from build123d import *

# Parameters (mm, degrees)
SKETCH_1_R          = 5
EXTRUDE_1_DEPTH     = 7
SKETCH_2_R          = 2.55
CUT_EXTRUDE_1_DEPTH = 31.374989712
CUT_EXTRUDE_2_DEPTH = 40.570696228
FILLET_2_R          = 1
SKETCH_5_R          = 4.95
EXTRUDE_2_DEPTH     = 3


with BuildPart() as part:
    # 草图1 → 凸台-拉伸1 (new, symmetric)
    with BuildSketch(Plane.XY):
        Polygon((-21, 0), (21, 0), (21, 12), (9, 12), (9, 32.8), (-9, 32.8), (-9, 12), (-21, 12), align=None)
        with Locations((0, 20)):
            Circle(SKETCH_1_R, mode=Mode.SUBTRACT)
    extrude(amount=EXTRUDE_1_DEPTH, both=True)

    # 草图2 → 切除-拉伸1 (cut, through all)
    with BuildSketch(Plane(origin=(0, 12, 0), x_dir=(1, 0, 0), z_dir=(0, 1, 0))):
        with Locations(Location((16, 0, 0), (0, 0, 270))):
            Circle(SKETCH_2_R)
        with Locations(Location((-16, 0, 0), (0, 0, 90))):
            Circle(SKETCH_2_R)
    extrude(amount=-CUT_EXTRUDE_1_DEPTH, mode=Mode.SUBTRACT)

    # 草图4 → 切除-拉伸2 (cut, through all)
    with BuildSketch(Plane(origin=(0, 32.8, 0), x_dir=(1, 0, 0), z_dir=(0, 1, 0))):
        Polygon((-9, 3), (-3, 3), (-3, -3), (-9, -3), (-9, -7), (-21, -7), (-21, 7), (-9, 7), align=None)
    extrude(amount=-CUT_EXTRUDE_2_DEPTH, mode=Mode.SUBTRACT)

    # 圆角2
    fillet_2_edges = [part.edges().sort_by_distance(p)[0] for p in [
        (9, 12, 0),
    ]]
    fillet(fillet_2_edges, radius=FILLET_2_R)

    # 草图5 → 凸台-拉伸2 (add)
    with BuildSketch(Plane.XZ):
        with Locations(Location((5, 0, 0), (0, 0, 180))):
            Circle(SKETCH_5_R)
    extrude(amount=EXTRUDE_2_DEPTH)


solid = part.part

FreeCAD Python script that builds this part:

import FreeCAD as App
import Part
import Sketcher

V = App.Vector


def edges_at(feature, points):
    """Names of the edges that pass closest to the given points."""
    edges = feature.Shape.Edges
    near = lambda p: min(range(len(edges)), key=lambda i: edges[i].distToShape(Part.Vertex(*p))[0])
    return sorted({f"Edge{near(p) + 1}" for p in points})

doc = App.newDocument("Part")
body = doc.addObject("PartDesign::Body", "Body")

# Sketch on XY plane
sketch1 = body.newObject("Sketcher::SketchObject", "Sketch")
sketch1.AttachmentSupport = (doc.getObject("XY_Plane"), [""])
sketch1.MapMode = "FlatFace"
sketch1.addGeometry(Part.LineSegment(V(-21, 0, 0), V(21, 0, 0)), False)
sketch1.addGeometry(Part.LineSegment(V(21, 0, 0), V(21, 12, 0)), False)
sketch1.addGeometry(Part.LineSegment(V(21, 12, 0), V(9, 12, 0)), False)
sketch1.addGeometry(Part.LineSegment(V(9, 12, 0), V(9, 33, 0)), False)
sketch1.addGeometry(Part.LineSegment(V(9, 33, 0), V(-9, 33, 0)), False)
sketch1.addGeometry(Part.LineSegment(V(-9, 33, 0), V(-9, 12, 0)), False)
sketch1.addGeometry(Part.LineSegment(V(-9, 12, 0), V(-21, 12, 0)), False)
sketch1.addGeometry(Part.LineSegment(V(-21, 12, 0), V(-21, 0, 0)), False)
sketch1.addGeometry(Part.Circle(V(0, 20, 0), V(0, 0, 1), 5), False)
sketch1.addConstraint(Sketcher.Constraint("Coincident", 0, 2, 1, 1))
sketch1.addConstraint(Sketcher.Constraint("Coincident", 1, 2, 2, 1))
sketch1.addConstraint(Sketcher.Constraint("Coincident", 2, 2, 3, 1))
sketch1.addConstraint(Sketcher.Constraint("Coincident", 3, 2, 4, 1))
sketch1.addConstraint(Sketcher.Constraint("Coincident", 4, 2, 5, 1))
sketch1.addConstraint(Sketcher.Constraint("Coincident", 5, 2, 6, 1))
sketch1.addConstraint(Sketcher.Constraint("Coincident", 6, 2, 7, 1))
sketch1.addConstraint(Sketcher.Constraint("Coincident", 7, 2, 0, 1))
sketch1.addConstraint(Sketcher.Constraint("Horizontal", 0))
sketch1.addConstraint(Sketcher.Constraint("Vertical", 1))
sketch1.addConstraint(Sketcher.Constraint("Horizontal", 2))
sketch1.addConstraint(Sketcher.Constraint("Vertical", 3))
sketch1.addConstraint(Sketcher.Constraint("Horizontal", 4))
sketch1.addConstraint(Sketcher.Constraint("Vertical", 5))
sketch1.addConstraint(Sketcher.Constraint("Horizontal", 6))
sketch1.addConstraint(Sketcher.Constraint("Vertical", 7))
sketch1.addConstraint(Sketcher.Constraint("Symmetric", 0, 2, 7, 2, -1, 1))
sketch1.addConstraint(Sketcher.Constraint("Symmetric", 2, 2, 5, 2, -2))
sketch1.addConstraint(Sketcher.Constraint("PointOnObject", 8, 3, -2))
sketch1.addConstraint(Sketcher.Constraint("Equal", 6, 1))
sketch1.addConstraint(Sketcher.Constraint("Diameter", 8, 10.0))
sketch1.addConstraint(Sketcher.Constraint("DistanceX", 0, 1, 0, 2, 42.0))
sketch1.addConstraint(Sketcher.Constraint("DistanceX", 2, 2, 2, 1, 12.0))
sketch1.addConstraint(Sketcher.Constraint("DistanceY", 3, 1, 3, 2, 20.8))
sketch1.addConstraint(Sketcher.Constraint("DistanceY", -1, 1, 8, 3, 20.0))
pad1 = body.newObject("PartDesign::Pad", "Pad")
pad1.Profile = sketch1
pad1.Length = 14
pad1.Midplane = True

# Sketch on XZ plane
sketch2 = body.newObject("Sketcher::SketchObject", "Sketch001")
sketch2.AttachmentSupport = (doc.getObject("XZ_Plane"), [""])
sketch2.MapMode = "FlatFace"
sketch2.AttachmentOffset = App.Placement(V(0, 0, -12), App.Rotation())
sketch2.addGeometry(Part.Circle(V(16, 0, 0), V(0, 0, 1), 2.5), False)
sketch2.addGeometry(Part.Circle(V(-16, 0, 0), V(0, 0, 1), 2.5), False)
sketch2.addConstraint(Sketcher.Constraint("Equal", 0, 1))
sketch2.addConstraint(Sketcher.Constraint("Symmetric", 0, 3, 1, 3, -1, 1))
sketch2.addConstraint(Sketcher.Constraint("PointOnObject", 0, 3, -1))
sketch2.addConstraint(Sketcher.Constraint("Diameter", 0, 5.1))
sketch2.addConstraint(Sketcher.Constraint("DistanceX", -1, 1, 0, 3, 16.0))
pocket1 = body.newObject("PartDesign::Pocket", "Pocket")
pocket1.Profile = sketch2
pocket1.Type = "ThroughAll"
pocket1.Reversed = True

# Sketch on XZ plane
sketch3 = body.newObject("Sketcher::SketchObject", "Sketch002")
sketch3.AttachmentSupport = (doc.getObject("XZ_Plane"), [""])
sketch3.MapMode = "FlatFace"
sketch3.AttachmentOffset = App.Placement(V(0, 0, -32.8), App.Rotation())
sketch3.addGeometry(Part.LineSegment(V(-3, -3, 0), V(-9, -3, 0)), False)
sketch3.addGeometry(Part.LineSegment(V(-9, -3, 0), V(-9, -7, 0)), False)
sketch3.addGeometry(Part.LineSegment(V(-9, -7, 0), V(-21, -7, 0)), False)
sketch3.addGeometry(Part.LineSegment(V(-21, -7, 0), V(-21, 7, 0)), False)
sketch3.addGeometry(Part.LineSegment(V(-21, 7, 0), V(-9, 7, 0)), False)
sketch3.addGeometry(Part.LineSegment(V(-9, 7, 0), V(-9, 3, 0)), False)
sketch3.addGeometry(Part.LineSegment(V(-9, 3, 0), V(-3, 3, 0)), False)
sketch3.addGeometry(Part.LineSegment(V(-3, 3, 0), V(-3, -3, 0)), False)
sketch3.addConstraint(Sketcher.Constraint("Coincident", 0, 2, 1, 1))
sketch3.addConstraint(Sketcher.Constraint("Coincident", 1, 2, 2, 1))
sketch3.addConstraint(Sketcher.Constraint("Coincident", 2, 2, 3, 1))
sketch3.addConstraint(Sketcher.Constraint("Coincident", 3, 2, 4, 1))
sketch3.addConstraint(Sketcher.Constraint("Coincident", 4, 2, 5, 1))
sketch3.addConstraint(Sketcher.Constraint("Coincident", 5, 2, 6, 1))
sketch3.addConstraint(Sketcher.Constraint("Coincident", 6, 2, 7, 1))
sketch3.addConstraint(Sketcher.Constraint("Coincident", 7, 2, 0, 1))
sketch3.addConstraint(Sketcher.Constraint("Horizontal", 0))
sketch3.addConstraint(Sketcher.Constraint("Vertical", 1))
sketch3.addConstraint(Sketcher.Constraint("Horizontal", 2))
sketch3.addConstraint(Sketcher.Constraint("Vertical", 3))
sketch3.addConstraint(Sketcher.Constraint("Horizontal", 4))
sketch3.addConstraint(Sketcher.Constraint("Vertical", 5))
sketch3.addConstraint(Sketcher.Constraint("Horizontal", 6))
sketch3.addConstraint(Sketcher.Constraint("Vertical", 7))
sketch3.addConstraint(Sketcher.Constraint("Symmetric", 1, 2, 4, 2, -1))
sketch3.addConstraint(Sketcher.Constraint("Equal", 1, 5))
sketch3.addConstraint(Sketcher.Constraint("Equal", 6, 7))
sketch3.addConstraint(Sketcher.Constraint("DistanceX", 0, 2, 0, 1, 6.0))
sketch3.addConstraint(Sketcher.Constraint("DistanceX", 2, 2, 2, 1, 12.0))
sketch3.addConstraint(Sketcher.Constraint("DistanceY", 1, 2, 1, 1, 4.0))
sketch3.addConstraint(Sketcher.Constraint("DistanceX", 0, 2, -1, 1, 9.0))
pocket2 = body.newObject("PartDesign::Pocket", "Pocket001")
pocket2.Profile = sketch3
pocket2.Type = "ThroughAll"
pocket2.Reversed = True
doc.recompute()

fillet = body.newObject("PartDesign::Fillet", "Fillet")
fillet.Base = (pocket2, edges_at(pocket2, [(9, 12, 0)]))
fillet.Radius = 1

# Sketch on XZ plane
sketch4 = body.newObject("Sketcher::SketchObject", "Sketch003")
sketch4.AttachmentSupport = (doc.getObject("XZ_Plane"), [""])
sketch4.MapMode = "FlatFace"
sketch4.addGeometry(Part.Circle(V(5, 0, 0), V(0, 0, 1), 5), False)
sketch4.addConstraint(Sketcher.Constraint("PointOnObject", 0, 3, -1))
sketch4.addConstraint(Sketcher.Constraint("Diameter", 0, 9.9))
sketch4.addConstraint(Sketcher.Constraint("DistanceX", -1, 1, 0, 3, 5.0))
pad2 = body.newObject("PartDesign::Pad", "Pad001")
pad2.Profile = sketch4
pad2.Length = 3

doc.recompute()
